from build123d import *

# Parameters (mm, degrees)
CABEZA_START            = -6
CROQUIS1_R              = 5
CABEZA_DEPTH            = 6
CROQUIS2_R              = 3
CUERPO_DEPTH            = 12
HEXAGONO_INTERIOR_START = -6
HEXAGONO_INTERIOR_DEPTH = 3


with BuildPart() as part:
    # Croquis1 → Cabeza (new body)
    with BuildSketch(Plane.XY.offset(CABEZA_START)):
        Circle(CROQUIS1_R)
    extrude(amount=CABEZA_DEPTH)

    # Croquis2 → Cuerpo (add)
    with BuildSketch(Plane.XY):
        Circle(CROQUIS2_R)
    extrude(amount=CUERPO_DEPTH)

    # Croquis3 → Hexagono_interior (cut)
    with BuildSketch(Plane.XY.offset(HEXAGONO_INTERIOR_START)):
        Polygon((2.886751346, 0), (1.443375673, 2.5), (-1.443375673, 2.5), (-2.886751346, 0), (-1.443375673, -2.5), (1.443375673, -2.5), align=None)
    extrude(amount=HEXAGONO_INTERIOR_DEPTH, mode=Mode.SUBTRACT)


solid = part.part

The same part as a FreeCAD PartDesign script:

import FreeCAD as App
import Part
import Sketcher
from FreeCAD import Vector
Q = App.Units.Quantity

doc = App.newDocument("Part")
body = doc.addObject("PartDesign::Body", "Body")

# Sketch on XY plane
sketch1 = doc.addObject("Sketcher::SketchObject", "Sketch")
body.addObject(sketch1)
sketch1.AttachmentSupport = (doc.XY_Plane, [""])
sketch1.MapMode = "FlatFace"
sketch1.AttachmentOffset = App.Placement(Vector(0, 0, -6), App.Rotation())
sketch1.addGeometry(Part.Circle(Vector(0, 0, 0), Vector(0, 0, 1), 5), False)
sketch1.addConstraint(Sketcher.Constraint("Coincident", 0, 3, -1, 1))
sketch1.addConstraint(Sketcher.Constraint("Diameter", 0, Q("10 mm")))
pad1 = doc.addObject("PartDesign::Pad", "Pad")
body.addObject(pad1)
pad1.Profile = sketch1
pad1.Length = 6

# Sketch on XY plane
sketch2 = doc.addObject("Sketcher::SketchObject", "Sketch001")
body.addObject(sketch2)
sketch2.AttachmentSupport = (doc.XY_Plane, [""])
sketch2.MapMode = "FlatFace"
sketch2.addGeometry(Part.Circle(Vector(0, 0, 0), Vector(0, 0, 1), 3), False)
sketch2.addConstraint(Sketcher.Constraint("Coincident", 0, 3, -1, 1))
sketch2.addConstraint(Sketcher.Constraint("Diameter", 0, Q("6 mm")))
pad2 = doc.addObject("PartDesign::Pad", "Pad001")
body.addObject(pad2)
pad2.Profile = sketch2
pad2.Length = 12

# Sketch on XY plane
sketch3 = doc.addObject("Sketcher::SketchObject", "Sketch002")
body.addObject(sketch3)
sketch3.AttachmentSupport = (doc.XY_Plane, [""])
sketch3.MapMode = "FlatFace"
sketch3.AttachmentOffset = App.Placement(Vector(0, 0, -6), App.Rotation())
sketch3.addGeometry(Part.LineSegment(Vector(2.9, 0, 0), Vector(1.4, 2.5, 0)), False)
sketch3.addGeometry(Part.LineSegment(Vector(1.4, 2.5, 0), Vector(-1.4, 2.5, 0)), False)
sketch3.addGeometry(Part.LineSegment(Vector(-1.4, 2.5, 0), Vector(-2.9, 0, 0)), False)
sketch3.addGeometry(Part.LineSegment(Vector(-2.9, 0, 0), Vector(-1.4, -2.5, 0)), False)
sketch3.addGeometry(Part.LineSegment(Vector(-1.4, -2.5, 0), Vector(1.4, -2.5, 0)), False)
sketch3.addGeometry(Part.LineSegment(Vector(1.4, -2.5, 0), Vector(2.9, 0, 0)), False)
sketch3.addConstraint(Sketcher.Constraint("Coincident", 0, 2, 1, 1))
sketch3.addConstraint(Sketcher.Constraint("Coincident", 1, 2, 2, 1))
sketch3.addConstraint(Sketcher.Constraint("Coincident", 2, 2, 3, 1))
sketch3.addConstraint(Sketcher.Constraint("Coincident", 3, 2, 4, 1))
sketch3.addConstraint(Sketcher.Constraint("Coincident", 4, 2, 5, 1))
sketch3.addConstraint(Sketcher.Constraint("Coincident", 5, 2, 0, 1))
sketch3.addConstraint(Sketcher.Constraint("Horizontal", 1))
sketch3.addConstraint(Sketcher.Constraint("Horizontal", 4))
sketch3.addConstraint(Sketcher.Constraint("Symmetric", 0, 2, 3, 2, -1, 1))
sketch3.addConstraint(Sketcher.Constraint("Symmetric", 2, 2, 5, 2, -1, 1))
sketch3.addConstraint(Sketcher.Constraint("PointOnObject", 2, 2, -1))
sketch3.addConstraint(Sketcher.Constraint("Parallel", 2, 5))
sketch3.addConstraint(Sketcher.Constraint("Vertical", 1, 2, 3, 2))
sketch3.addConstraint(Sketcher.Constraint("Angle", 0, Q("120 deg")))
sketch3.addConstraint(Sketcher.Constraint("DistanceY", 3, 2, 1, 2, Q("5 mm")))
sketch3.addConstraint(Sketcher.Constraint("DistanceX", 1, 2, 1, 1, Q("2.886751 mm")))
pocket1 = doc.addObject("PartDesign::Pocket", "Pocket")
body.addObject(pocket1)
pocket1.Profile = sketch3
pocket1.Length = 3
pocket1.Reversed = True

doc.recompute()
